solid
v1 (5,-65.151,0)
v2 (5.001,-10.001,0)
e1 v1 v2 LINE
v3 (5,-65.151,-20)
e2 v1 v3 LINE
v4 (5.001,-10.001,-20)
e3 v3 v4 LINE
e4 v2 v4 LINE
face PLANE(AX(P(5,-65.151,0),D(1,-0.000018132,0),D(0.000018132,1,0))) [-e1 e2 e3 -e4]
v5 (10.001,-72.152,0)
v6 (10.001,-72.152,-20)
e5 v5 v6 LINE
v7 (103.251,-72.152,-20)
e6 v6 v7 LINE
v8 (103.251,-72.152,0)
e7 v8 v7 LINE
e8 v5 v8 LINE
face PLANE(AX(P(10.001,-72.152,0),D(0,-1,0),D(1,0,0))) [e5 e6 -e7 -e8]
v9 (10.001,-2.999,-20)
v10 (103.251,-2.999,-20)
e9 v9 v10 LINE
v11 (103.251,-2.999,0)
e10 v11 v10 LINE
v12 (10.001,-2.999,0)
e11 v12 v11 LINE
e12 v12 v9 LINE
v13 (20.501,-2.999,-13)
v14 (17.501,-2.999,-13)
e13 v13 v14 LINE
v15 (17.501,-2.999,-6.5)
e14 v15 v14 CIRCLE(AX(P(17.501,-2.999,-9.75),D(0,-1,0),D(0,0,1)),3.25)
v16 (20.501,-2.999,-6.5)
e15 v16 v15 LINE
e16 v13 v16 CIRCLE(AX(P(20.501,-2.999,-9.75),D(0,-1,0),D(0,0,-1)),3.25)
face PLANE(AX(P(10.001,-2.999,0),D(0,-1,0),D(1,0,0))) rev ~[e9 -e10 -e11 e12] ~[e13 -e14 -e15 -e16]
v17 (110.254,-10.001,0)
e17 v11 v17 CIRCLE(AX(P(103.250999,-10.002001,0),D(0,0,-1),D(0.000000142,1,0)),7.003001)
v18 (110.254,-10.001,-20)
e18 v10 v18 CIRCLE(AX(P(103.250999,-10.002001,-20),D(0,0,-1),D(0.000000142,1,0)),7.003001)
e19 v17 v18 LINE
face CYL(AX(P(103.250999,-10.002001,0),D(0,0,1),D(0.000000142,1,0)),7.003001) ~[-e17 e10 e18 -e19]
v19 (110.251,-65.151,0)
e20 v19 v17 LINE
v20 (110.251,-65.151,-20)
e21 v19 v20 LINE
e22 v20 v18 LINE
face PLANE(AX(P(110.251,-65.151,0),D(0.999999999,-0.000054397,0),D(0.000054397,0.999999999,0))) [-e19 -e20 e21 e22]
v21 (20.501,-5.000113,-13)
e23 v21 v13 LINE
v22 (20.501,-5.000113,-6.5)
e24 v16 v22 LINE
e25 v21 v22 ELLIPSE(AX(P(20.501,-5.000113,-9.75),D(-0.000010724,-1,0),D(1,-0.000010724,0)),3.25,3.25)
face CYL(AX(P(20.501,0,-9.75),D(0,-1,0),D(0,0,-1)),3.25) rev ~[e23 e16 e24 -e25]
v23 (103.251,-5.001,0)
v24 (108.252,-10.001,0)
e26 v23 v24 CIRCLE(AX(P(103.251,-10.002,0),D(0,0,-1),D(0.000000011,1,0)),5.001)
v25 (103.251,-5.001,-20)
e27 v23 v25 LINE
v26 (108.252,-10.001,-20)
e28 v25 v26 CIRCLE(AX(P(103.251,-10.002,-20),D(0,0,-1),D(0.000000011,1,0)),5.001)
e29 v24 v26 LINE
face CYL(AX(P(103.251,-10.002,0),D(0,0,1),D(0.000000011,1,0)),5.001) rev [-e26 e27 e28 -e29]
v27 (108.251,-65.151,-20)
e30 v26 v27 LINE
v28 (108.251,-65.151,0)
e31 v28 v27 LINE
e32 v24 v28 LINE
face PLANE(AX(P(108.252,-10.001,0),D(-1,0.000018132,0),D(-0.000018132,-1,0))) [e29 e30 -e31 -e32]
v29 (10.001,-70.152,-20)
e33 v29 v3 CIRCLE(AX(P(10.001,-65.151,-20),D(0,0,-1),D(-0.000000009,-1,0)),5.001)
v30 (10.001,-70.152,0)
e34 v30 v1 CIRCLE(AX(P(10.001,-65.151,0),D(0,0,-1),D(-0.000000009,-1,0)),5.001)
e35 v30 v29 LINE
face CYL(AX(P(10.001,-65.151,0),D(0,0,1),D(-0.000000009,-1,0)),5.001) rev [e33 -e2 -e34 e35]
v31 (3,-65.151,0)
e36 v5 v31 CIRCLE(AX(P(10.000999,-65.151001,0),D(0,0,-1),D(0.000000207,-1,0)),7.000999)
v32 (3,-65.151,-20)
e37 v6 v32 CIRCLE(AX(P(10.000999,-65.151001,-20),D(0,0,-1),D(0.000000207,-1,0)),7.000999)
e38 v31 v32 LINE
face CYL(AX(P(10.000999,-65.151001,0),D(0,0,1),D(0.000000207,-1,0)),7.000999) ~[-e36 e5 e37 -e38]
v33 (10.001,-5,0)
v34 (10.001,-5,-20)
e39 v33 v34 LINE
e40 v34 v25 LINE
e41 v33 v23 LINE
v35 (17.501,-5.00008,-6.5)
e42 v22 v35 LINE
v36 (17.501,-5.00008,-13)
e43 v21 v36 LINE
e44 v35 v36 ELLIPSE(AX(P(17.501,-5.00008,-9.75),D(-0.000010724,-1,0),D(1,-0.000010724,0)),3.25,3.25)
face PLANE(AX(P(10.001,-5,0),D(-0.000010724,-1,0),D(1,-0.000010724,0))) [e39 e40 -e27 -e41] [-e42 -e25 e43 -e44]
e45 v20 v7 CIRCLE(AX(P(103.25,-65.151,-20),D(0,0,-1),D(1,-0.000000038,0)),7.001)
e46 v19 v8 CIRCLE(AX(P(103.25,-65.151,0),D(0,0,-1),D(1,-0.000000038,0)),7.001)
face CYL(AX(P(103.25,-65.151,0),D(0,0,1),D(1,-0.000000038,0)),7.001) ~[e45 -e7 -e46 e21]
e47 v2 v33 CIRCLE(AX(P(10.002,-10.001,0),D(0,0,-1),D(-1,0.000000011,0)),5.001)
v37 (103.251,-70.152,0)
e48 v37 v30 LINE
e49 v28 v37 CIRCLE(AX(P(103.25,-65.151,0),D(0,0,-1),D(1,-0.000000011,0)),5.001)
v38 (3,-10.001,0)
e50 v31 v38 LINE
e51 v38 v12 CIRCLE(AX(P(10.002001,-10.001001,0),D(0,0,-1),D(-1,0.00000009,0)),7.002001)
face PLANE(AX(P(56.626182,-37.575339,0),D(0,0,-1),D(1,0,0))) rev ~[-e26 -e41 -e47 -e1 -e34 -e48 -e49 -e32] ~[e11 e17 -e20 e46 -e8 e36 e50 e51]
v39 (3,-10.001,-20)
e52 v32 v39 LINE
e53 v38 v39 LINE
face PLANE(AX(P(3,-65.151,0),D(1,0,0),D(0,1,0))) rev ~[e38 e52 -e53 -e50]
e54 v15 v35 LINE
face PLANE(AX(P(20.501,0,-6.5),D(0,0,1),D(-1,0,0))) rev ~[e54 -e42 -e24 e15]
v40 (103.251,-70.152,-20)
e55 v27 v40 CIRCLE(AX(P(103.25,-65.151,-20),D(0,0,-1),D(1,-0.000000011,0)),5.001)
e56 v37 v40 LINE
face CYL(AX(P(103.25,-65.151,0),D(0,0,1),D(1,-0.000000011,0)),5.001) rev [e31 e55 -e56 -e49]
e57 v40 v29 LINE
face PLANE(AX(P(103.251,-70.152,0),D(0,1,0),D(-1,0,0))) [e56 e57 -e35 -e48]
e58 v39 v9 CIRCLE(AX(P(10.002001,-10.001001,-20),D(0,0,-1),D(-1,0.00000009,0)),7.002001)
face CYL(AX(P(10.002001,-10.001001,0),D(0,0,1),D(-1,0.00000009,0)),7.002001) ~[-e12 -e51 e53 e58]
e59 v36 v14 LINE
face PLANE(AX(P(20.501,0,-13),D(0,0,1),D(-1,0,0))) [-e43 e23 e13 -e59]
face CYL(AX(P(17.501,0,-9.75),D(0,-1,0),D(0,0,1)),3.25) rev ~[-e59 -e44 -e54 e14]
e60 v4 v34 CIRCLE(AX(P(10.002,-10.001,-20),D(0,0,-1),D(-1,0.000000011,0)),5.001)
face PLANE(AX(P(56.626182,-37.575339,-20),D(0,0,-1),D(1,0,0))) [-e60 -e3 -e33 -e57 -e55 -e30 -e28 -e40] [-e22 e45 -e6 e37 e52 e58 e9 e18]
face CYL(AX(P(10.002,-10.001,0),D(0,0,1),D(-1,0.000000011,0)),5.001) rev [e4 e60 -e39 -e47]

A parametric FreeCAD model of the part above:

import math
import FreeCAD as App
import Part
import Sketcher

doc = App.newDocument("Part")
params = doc.addObject("Spreadsheet::Sheet", "Params")
for row, (alias, value) in enumerate([
    ("sketch1_width", "3 mm"),
    ("sketch1_radius", "3.25 mm"),
    ("pad1_length", "20 mm"),
    ("sketch2_width", "93.25 mm"),
    ("sketch2_height", "55.15 mm"),
    ("pad2_length", "20 mm"),
], start=1):
    params.set(f"A{row}", alias)
    params.set(f"B{row}", "=" + value)
    params.setAlias(f"B{row}", alias)

body = doc.addObject("PartDesign::Body", "Body")

# Sketch on XZ plane
sketch1 = body.newObject("Sketcher::SketchObject", "Sketch")
sketch1.AttachmentSupport = (doc.getObject("XZ_Plane"), [""])
sketch1.MapMode = "FlatFace"
sketch1.addGeometry(Part.ArcOfCircle(Part.Circle(App.Vector(20.501, -9.75, 0), App.Vector(0, 0, 1), 3.25), math.radians(-90), math.radians(90)), False)
sketch1.addGeometry(Part.LineSegment(App.Vector(20.501, -6.5, 0), App.Vector(17.501, -6.5, 0)), False)
sketch1.addGeometry(Part.ArcOfCircle(Part.Circle(App.Vector(17.501, -9.75, 0), App.Vector(0, 0, 1), 3.25), math.radians(90), math.radians(270)), False)
sketch1.addGeometry(Part.LineSegment(App.Vector(17.501, -13, 0), App.Vector(20.501, -13, 0)), False)
sketch1.addConstraint(Sketcher.Constraint("Tangent", 0, 2, 1, 1))
sketch1.addConstraint(Sketcher.Constraint("Tangent", 1, 2, 2, 1))
sketch1.addConstraint(Sketcher.Constraint("Tangent", 2, 2, 3, 1))
sketch1.addConstraint(Sketcher.Constraint("Tangent", 3, 2, 0, 1))
sketch1.addConstraint(Sketcher.Constraint("Horizontal", 1))
sketch1.addConstraint(Sketcher.Constraint("Horizontal", 3))
sketch1.addConstraint(Sketcher.Constraint("DistanceX", 1, 2, 1, 1, 3.0))
sketch1.addConstraint(Sketcher.Constraint("Radius", 0, 3.25))
sketch1.addConstraint(Sketcher.Constraint("DistanceY", 2, 2, -1, 1, 13.0))
sketch1.addConstraint(Sketcher.Constraint("DistanceX", -1, 1, 0, 3, 20.501))
sketch1.setExpression("Constraints[6]", "Params.sketch1_width")
sketch1.setExpression("Constraints[7]", "Params.sketch1_radius")
pad1 = body.newObject("PartDesign::Pad", "Pad")
pad1.Profile = sketch1
pad1.setExpression("Length", "Params.pad1_length")
pad1.Midplane = True
body2 = doc.addObject("PartDesign::Body", "Body001")

# Sketch on XY plane
sketch2 = body2.newObject("Sketcher::SketchObject", "Sketch001")
sketch2.AttachmentSupport = (doc.getObject("XY_Plane001"), [""])
sketch2.MapMode = "FlatFace"
sketch2.addGeometry(Part.LineSegment(App.Vector(3, -65.151, 0), App.Vector(3, -10.001, 0)), False)
sketch2.addGeometry(Part.ArcOfCircle(Part.Circle(App.Vector(10.002001, -10.001001, 0), App.Vector(0, 0, 1), 7.002001), math.radians(90.008189), math.radians(179.999995)), False)
sketch2.addGeometry(Part.LineSegment(App.Vector(10.001, -2.999, 0), App.Vector(103.251, -2.999, 0)), False)
sketch2.addGeometry(Part.ArcOfCircle(Part.Circle(App.Vector(103.250999, -10.002001, 0), App.Vector(0, 0, 1), 7.003001), math.radians(0.00819), math.radians(89.999992)), False)
sketch2.addGeometry(Part.LineSegment(App.Vector(110.254, -10.001, 0), App.Vector(110.251, -65.151, 0)), False)
sketch2.addGeometry(Part.ArcOfCircle(Part.Circle(App.Vector(103.25, -65.151, 0), App.Vector(0, 0, 1), 7.001), math.radians(-89.991813), math.radians(-0.000002)), False)
sketch2.addGeometry(Part.LineSegment(App.Vector(103.251, -72.152, 0), App.Vector(10.001, -72.152, 0)), False)
sketch2.addGeometry(Part.ArcOfCircle(Part.Circle(App.Vector(10.000999, -65.151001, 0), App.Vector(0, 0, 1), 7.000999), math.radians(179.999988), math.radians(270.000012)), False)
sketch2.addGeometry(Part.LineSegment(App.Vector(5.001, -10.001, 0), App.Vector(5, -65.151, 0)), False)
sketch2.addGeometry(Part.ArcOfCircle(Part.Circle(App.Vector(10.001, -65.151, 0), App.Vector(0, 0, 1), 5.001), math.radians(-180), math.radians(-90)), False)
sketch2.addGeometry(Part.LineSegment(App.Vector(10.001, -70.152, 0), App.Vector(103.251, -70.152, 0)), False)
sketch2.addGeometry(Part.ArcOfCircle(Part.Circle(App.Vector(103.25, -65.151, 0), App.Vector(0, 0, 1), 5.001), math.radians(-89.988541), math.radians(-0.000001)), False)
sketch2.addGeometry(Part.LineSegment(App.Vector(108.251, -65.151, 0), App.Vector(108.252, -10.001, 0)), False)
sketch2.addGeometry(Part.ArcOfCircle(Part.Circle(App.Vector(103.251, -10.002, 0), App.Vector(0, 0, 1), 5.001), math.radians(0.011459), math.radians(89.999999)), False)
sketch2.addGeometry(Part.LineSegment(App.Vector(103.251, -5.001, 0), App.Vector(10.001, -5, 0)), False)
sketch2.addGeometry(Part.ArcOfCircle(Part.Circle(App.Vector(10.002, -10.001, 0), App.Vector(0, 0, 1), 5.001), math.radians(90.011459), math.radians(179.999999)), False)
sketch2.addConstraint(Sketcher.Constraint("Tangent", 0, 2, 1, 2))
sketch2.addConstraint(Sketcher.Constraint("Coincident", 1, 1, 2, 1))
sketch2.addConstraint(Sketcher.Constraint("Tangent", 2, 2, 3, 2))
sketch2.addConstraint(Sketcher.Constraint("Coincident", 3, 1, 4, 1))
sketch2.addConstraint(Sketcher.Constraint("Coincident", 4, 2, 5, 2))
sketch2.addConstraint(Sketcher.Constraint("Coincident", 5, 1, 6, 1))
sketch2.addConstraint(Sketcher.Constraint("Tangent", 6, 2, 7, 2))
sketch2.addConstraint(Sketcher.Constraint("Tangent", 7, 1, 0, 1))
sketch2.addConstraint(Sketcher.Constraint("Coincident", 8, 2, 9, 1))
sketch2.addConstraint(Sketcher.Constraint("Tangent", 9, 2, 10, 1))
sketch2.addConstraint(Sketcher.Constraint("Coincident", 10, 2, 11, 1))
sketch2.addConstraint(Sketcher.Constraint("Coincident", 11, 2, 12, 1))
sketch2.addConstraint(Sketcher.Constraint("Coincident", 12, 2, 13, 1))
sketch2.addConstraint(Sketcher.Constraint("Coincident", 13, 2, 14, 1))
sketch2.addConstraint(Sketcher.Constraint("Coincident", 14, 2, 15, 1))
sketch2.addConstraint(Sketcher.Constraint("Coincident", 15, 2, 8, 1))
sketch2.addConstraint(Sketcher.Constraint("Vertical", 0))
sketch2.addConstraint(Sketcher.Constraint("Horizontal", 2))
sketch2.addConstraint(Sketcher.Constraint("Horizontal", 6))
sketch2.addConstraint(Sketcher.Constraint("Horizontal", 10))
sketch2.addConstraint(Sketcher.Constraint("Coincident", 9, 3, 7, 3))
sketch2.addConstraint(Sketcher.Constraint("Coincident", 11, 3, 5, 3))
sketch2.addConstraint(Sketcher.Constraint("Coincident", 13, 3, 3, 3))
sketch2.addConstraint(Sketcher.Constraint("Coincident", 15, 3, 1, 3))
sketch2.addConstraint(Sketcher.Constraint("Equal", 5, 7))
sketch2.addConstraint(Sketcher.Constraint("Equal", 11, 13))
sketch2.addConstraint(Sketcher.Constraint("Equal", 13, 15))
sketch2.addConstraint(Sketcher.Constraint("Parallel", 8, 12))
sketch2.addConstraint(Sketcher.Constraint("Horizontal", 0, 2, 3, 1))
sketch2.addConstraint(Sketcher.Constraint("Horizontal", 11, 3, 4, 2))
sketch2.addConstraint(Sketcher.Constraint("Horizontal", 7, 1, 8, 2))
sketch2.addConstraint(Sketcher.Constraint("Horizontal", 8, 2, 11, 2))
sketch2.addConstraint(Sketcher.Constraint("Horizontal", 3, 1, 12, 2))
sketch2.addConstraint(Sketcher.Constraint("Horizontal", 12, 2, 15, 2))
sketch2.addConstraint(Sketcher.Constraint("Vertical", 9, 3, 1, 1))
sketch2.addConstraint(Sketcher.Constraint("Vertical", 2, 2, 5, 1))
sketch2.addConstraint(Sketcher.Constraint("Vertical", 5, 1, 10, 2))
sketch2.addConstraint(Sketcher.Constraint("Vertical", 10, 2, 13, 2))
sketch2.addConstraint(Sketcher.Constraint("Vertical", 9, 2, 14, 2))
sketch2.addConstraint(Sketcher.Constraint("DistanceX", -1, 1, 0, 2, 3.0))
sketch2.addConstraint(Sketcher.Constraint("DistanceX", -1, 1, 8, 2, 5.0))
sketch2.addConstraint(Sketcher.Constraint("DistanceY", 14, 2, -1, 1, 5.0))
sketch2.addConstraint(Sketcher.Constraint("Radius", 1, 7.002001))
sketch2.addConstraint(Sketcher.Constraint("Radius", 3, 7.003001))
sketch2.addConstraint(Sketcher.Constraint("Radius", 5, 7.001))
sketch2.addConstraint(Sketcher.Constraint("DistanceX", 2, 1, 2, 2, 93.25))
sketch2.addConstraint(Sketcher.Constraint("DistanceY", 0, 1, 0, 2, 55.15))
sketch2.setExpression("Constraints[45]", "Params.sketch2_width")
sketch2.setExpression("Constraints[46]", "Params.sketch2_height")
pad2 = body2.newObject("PartDesign::Pad", "Pad001")
pad2.Profile = sketch2
pad2.setExpression("Length", "Params.pad2_length")
pad2.Reversed = True
doc.recompute()

boolean = body2.newObject("PartDesign::Boolean", "Boolean")
boolean.Type = "Cut"
boolean.addObjects([body])

doc.recompute()
